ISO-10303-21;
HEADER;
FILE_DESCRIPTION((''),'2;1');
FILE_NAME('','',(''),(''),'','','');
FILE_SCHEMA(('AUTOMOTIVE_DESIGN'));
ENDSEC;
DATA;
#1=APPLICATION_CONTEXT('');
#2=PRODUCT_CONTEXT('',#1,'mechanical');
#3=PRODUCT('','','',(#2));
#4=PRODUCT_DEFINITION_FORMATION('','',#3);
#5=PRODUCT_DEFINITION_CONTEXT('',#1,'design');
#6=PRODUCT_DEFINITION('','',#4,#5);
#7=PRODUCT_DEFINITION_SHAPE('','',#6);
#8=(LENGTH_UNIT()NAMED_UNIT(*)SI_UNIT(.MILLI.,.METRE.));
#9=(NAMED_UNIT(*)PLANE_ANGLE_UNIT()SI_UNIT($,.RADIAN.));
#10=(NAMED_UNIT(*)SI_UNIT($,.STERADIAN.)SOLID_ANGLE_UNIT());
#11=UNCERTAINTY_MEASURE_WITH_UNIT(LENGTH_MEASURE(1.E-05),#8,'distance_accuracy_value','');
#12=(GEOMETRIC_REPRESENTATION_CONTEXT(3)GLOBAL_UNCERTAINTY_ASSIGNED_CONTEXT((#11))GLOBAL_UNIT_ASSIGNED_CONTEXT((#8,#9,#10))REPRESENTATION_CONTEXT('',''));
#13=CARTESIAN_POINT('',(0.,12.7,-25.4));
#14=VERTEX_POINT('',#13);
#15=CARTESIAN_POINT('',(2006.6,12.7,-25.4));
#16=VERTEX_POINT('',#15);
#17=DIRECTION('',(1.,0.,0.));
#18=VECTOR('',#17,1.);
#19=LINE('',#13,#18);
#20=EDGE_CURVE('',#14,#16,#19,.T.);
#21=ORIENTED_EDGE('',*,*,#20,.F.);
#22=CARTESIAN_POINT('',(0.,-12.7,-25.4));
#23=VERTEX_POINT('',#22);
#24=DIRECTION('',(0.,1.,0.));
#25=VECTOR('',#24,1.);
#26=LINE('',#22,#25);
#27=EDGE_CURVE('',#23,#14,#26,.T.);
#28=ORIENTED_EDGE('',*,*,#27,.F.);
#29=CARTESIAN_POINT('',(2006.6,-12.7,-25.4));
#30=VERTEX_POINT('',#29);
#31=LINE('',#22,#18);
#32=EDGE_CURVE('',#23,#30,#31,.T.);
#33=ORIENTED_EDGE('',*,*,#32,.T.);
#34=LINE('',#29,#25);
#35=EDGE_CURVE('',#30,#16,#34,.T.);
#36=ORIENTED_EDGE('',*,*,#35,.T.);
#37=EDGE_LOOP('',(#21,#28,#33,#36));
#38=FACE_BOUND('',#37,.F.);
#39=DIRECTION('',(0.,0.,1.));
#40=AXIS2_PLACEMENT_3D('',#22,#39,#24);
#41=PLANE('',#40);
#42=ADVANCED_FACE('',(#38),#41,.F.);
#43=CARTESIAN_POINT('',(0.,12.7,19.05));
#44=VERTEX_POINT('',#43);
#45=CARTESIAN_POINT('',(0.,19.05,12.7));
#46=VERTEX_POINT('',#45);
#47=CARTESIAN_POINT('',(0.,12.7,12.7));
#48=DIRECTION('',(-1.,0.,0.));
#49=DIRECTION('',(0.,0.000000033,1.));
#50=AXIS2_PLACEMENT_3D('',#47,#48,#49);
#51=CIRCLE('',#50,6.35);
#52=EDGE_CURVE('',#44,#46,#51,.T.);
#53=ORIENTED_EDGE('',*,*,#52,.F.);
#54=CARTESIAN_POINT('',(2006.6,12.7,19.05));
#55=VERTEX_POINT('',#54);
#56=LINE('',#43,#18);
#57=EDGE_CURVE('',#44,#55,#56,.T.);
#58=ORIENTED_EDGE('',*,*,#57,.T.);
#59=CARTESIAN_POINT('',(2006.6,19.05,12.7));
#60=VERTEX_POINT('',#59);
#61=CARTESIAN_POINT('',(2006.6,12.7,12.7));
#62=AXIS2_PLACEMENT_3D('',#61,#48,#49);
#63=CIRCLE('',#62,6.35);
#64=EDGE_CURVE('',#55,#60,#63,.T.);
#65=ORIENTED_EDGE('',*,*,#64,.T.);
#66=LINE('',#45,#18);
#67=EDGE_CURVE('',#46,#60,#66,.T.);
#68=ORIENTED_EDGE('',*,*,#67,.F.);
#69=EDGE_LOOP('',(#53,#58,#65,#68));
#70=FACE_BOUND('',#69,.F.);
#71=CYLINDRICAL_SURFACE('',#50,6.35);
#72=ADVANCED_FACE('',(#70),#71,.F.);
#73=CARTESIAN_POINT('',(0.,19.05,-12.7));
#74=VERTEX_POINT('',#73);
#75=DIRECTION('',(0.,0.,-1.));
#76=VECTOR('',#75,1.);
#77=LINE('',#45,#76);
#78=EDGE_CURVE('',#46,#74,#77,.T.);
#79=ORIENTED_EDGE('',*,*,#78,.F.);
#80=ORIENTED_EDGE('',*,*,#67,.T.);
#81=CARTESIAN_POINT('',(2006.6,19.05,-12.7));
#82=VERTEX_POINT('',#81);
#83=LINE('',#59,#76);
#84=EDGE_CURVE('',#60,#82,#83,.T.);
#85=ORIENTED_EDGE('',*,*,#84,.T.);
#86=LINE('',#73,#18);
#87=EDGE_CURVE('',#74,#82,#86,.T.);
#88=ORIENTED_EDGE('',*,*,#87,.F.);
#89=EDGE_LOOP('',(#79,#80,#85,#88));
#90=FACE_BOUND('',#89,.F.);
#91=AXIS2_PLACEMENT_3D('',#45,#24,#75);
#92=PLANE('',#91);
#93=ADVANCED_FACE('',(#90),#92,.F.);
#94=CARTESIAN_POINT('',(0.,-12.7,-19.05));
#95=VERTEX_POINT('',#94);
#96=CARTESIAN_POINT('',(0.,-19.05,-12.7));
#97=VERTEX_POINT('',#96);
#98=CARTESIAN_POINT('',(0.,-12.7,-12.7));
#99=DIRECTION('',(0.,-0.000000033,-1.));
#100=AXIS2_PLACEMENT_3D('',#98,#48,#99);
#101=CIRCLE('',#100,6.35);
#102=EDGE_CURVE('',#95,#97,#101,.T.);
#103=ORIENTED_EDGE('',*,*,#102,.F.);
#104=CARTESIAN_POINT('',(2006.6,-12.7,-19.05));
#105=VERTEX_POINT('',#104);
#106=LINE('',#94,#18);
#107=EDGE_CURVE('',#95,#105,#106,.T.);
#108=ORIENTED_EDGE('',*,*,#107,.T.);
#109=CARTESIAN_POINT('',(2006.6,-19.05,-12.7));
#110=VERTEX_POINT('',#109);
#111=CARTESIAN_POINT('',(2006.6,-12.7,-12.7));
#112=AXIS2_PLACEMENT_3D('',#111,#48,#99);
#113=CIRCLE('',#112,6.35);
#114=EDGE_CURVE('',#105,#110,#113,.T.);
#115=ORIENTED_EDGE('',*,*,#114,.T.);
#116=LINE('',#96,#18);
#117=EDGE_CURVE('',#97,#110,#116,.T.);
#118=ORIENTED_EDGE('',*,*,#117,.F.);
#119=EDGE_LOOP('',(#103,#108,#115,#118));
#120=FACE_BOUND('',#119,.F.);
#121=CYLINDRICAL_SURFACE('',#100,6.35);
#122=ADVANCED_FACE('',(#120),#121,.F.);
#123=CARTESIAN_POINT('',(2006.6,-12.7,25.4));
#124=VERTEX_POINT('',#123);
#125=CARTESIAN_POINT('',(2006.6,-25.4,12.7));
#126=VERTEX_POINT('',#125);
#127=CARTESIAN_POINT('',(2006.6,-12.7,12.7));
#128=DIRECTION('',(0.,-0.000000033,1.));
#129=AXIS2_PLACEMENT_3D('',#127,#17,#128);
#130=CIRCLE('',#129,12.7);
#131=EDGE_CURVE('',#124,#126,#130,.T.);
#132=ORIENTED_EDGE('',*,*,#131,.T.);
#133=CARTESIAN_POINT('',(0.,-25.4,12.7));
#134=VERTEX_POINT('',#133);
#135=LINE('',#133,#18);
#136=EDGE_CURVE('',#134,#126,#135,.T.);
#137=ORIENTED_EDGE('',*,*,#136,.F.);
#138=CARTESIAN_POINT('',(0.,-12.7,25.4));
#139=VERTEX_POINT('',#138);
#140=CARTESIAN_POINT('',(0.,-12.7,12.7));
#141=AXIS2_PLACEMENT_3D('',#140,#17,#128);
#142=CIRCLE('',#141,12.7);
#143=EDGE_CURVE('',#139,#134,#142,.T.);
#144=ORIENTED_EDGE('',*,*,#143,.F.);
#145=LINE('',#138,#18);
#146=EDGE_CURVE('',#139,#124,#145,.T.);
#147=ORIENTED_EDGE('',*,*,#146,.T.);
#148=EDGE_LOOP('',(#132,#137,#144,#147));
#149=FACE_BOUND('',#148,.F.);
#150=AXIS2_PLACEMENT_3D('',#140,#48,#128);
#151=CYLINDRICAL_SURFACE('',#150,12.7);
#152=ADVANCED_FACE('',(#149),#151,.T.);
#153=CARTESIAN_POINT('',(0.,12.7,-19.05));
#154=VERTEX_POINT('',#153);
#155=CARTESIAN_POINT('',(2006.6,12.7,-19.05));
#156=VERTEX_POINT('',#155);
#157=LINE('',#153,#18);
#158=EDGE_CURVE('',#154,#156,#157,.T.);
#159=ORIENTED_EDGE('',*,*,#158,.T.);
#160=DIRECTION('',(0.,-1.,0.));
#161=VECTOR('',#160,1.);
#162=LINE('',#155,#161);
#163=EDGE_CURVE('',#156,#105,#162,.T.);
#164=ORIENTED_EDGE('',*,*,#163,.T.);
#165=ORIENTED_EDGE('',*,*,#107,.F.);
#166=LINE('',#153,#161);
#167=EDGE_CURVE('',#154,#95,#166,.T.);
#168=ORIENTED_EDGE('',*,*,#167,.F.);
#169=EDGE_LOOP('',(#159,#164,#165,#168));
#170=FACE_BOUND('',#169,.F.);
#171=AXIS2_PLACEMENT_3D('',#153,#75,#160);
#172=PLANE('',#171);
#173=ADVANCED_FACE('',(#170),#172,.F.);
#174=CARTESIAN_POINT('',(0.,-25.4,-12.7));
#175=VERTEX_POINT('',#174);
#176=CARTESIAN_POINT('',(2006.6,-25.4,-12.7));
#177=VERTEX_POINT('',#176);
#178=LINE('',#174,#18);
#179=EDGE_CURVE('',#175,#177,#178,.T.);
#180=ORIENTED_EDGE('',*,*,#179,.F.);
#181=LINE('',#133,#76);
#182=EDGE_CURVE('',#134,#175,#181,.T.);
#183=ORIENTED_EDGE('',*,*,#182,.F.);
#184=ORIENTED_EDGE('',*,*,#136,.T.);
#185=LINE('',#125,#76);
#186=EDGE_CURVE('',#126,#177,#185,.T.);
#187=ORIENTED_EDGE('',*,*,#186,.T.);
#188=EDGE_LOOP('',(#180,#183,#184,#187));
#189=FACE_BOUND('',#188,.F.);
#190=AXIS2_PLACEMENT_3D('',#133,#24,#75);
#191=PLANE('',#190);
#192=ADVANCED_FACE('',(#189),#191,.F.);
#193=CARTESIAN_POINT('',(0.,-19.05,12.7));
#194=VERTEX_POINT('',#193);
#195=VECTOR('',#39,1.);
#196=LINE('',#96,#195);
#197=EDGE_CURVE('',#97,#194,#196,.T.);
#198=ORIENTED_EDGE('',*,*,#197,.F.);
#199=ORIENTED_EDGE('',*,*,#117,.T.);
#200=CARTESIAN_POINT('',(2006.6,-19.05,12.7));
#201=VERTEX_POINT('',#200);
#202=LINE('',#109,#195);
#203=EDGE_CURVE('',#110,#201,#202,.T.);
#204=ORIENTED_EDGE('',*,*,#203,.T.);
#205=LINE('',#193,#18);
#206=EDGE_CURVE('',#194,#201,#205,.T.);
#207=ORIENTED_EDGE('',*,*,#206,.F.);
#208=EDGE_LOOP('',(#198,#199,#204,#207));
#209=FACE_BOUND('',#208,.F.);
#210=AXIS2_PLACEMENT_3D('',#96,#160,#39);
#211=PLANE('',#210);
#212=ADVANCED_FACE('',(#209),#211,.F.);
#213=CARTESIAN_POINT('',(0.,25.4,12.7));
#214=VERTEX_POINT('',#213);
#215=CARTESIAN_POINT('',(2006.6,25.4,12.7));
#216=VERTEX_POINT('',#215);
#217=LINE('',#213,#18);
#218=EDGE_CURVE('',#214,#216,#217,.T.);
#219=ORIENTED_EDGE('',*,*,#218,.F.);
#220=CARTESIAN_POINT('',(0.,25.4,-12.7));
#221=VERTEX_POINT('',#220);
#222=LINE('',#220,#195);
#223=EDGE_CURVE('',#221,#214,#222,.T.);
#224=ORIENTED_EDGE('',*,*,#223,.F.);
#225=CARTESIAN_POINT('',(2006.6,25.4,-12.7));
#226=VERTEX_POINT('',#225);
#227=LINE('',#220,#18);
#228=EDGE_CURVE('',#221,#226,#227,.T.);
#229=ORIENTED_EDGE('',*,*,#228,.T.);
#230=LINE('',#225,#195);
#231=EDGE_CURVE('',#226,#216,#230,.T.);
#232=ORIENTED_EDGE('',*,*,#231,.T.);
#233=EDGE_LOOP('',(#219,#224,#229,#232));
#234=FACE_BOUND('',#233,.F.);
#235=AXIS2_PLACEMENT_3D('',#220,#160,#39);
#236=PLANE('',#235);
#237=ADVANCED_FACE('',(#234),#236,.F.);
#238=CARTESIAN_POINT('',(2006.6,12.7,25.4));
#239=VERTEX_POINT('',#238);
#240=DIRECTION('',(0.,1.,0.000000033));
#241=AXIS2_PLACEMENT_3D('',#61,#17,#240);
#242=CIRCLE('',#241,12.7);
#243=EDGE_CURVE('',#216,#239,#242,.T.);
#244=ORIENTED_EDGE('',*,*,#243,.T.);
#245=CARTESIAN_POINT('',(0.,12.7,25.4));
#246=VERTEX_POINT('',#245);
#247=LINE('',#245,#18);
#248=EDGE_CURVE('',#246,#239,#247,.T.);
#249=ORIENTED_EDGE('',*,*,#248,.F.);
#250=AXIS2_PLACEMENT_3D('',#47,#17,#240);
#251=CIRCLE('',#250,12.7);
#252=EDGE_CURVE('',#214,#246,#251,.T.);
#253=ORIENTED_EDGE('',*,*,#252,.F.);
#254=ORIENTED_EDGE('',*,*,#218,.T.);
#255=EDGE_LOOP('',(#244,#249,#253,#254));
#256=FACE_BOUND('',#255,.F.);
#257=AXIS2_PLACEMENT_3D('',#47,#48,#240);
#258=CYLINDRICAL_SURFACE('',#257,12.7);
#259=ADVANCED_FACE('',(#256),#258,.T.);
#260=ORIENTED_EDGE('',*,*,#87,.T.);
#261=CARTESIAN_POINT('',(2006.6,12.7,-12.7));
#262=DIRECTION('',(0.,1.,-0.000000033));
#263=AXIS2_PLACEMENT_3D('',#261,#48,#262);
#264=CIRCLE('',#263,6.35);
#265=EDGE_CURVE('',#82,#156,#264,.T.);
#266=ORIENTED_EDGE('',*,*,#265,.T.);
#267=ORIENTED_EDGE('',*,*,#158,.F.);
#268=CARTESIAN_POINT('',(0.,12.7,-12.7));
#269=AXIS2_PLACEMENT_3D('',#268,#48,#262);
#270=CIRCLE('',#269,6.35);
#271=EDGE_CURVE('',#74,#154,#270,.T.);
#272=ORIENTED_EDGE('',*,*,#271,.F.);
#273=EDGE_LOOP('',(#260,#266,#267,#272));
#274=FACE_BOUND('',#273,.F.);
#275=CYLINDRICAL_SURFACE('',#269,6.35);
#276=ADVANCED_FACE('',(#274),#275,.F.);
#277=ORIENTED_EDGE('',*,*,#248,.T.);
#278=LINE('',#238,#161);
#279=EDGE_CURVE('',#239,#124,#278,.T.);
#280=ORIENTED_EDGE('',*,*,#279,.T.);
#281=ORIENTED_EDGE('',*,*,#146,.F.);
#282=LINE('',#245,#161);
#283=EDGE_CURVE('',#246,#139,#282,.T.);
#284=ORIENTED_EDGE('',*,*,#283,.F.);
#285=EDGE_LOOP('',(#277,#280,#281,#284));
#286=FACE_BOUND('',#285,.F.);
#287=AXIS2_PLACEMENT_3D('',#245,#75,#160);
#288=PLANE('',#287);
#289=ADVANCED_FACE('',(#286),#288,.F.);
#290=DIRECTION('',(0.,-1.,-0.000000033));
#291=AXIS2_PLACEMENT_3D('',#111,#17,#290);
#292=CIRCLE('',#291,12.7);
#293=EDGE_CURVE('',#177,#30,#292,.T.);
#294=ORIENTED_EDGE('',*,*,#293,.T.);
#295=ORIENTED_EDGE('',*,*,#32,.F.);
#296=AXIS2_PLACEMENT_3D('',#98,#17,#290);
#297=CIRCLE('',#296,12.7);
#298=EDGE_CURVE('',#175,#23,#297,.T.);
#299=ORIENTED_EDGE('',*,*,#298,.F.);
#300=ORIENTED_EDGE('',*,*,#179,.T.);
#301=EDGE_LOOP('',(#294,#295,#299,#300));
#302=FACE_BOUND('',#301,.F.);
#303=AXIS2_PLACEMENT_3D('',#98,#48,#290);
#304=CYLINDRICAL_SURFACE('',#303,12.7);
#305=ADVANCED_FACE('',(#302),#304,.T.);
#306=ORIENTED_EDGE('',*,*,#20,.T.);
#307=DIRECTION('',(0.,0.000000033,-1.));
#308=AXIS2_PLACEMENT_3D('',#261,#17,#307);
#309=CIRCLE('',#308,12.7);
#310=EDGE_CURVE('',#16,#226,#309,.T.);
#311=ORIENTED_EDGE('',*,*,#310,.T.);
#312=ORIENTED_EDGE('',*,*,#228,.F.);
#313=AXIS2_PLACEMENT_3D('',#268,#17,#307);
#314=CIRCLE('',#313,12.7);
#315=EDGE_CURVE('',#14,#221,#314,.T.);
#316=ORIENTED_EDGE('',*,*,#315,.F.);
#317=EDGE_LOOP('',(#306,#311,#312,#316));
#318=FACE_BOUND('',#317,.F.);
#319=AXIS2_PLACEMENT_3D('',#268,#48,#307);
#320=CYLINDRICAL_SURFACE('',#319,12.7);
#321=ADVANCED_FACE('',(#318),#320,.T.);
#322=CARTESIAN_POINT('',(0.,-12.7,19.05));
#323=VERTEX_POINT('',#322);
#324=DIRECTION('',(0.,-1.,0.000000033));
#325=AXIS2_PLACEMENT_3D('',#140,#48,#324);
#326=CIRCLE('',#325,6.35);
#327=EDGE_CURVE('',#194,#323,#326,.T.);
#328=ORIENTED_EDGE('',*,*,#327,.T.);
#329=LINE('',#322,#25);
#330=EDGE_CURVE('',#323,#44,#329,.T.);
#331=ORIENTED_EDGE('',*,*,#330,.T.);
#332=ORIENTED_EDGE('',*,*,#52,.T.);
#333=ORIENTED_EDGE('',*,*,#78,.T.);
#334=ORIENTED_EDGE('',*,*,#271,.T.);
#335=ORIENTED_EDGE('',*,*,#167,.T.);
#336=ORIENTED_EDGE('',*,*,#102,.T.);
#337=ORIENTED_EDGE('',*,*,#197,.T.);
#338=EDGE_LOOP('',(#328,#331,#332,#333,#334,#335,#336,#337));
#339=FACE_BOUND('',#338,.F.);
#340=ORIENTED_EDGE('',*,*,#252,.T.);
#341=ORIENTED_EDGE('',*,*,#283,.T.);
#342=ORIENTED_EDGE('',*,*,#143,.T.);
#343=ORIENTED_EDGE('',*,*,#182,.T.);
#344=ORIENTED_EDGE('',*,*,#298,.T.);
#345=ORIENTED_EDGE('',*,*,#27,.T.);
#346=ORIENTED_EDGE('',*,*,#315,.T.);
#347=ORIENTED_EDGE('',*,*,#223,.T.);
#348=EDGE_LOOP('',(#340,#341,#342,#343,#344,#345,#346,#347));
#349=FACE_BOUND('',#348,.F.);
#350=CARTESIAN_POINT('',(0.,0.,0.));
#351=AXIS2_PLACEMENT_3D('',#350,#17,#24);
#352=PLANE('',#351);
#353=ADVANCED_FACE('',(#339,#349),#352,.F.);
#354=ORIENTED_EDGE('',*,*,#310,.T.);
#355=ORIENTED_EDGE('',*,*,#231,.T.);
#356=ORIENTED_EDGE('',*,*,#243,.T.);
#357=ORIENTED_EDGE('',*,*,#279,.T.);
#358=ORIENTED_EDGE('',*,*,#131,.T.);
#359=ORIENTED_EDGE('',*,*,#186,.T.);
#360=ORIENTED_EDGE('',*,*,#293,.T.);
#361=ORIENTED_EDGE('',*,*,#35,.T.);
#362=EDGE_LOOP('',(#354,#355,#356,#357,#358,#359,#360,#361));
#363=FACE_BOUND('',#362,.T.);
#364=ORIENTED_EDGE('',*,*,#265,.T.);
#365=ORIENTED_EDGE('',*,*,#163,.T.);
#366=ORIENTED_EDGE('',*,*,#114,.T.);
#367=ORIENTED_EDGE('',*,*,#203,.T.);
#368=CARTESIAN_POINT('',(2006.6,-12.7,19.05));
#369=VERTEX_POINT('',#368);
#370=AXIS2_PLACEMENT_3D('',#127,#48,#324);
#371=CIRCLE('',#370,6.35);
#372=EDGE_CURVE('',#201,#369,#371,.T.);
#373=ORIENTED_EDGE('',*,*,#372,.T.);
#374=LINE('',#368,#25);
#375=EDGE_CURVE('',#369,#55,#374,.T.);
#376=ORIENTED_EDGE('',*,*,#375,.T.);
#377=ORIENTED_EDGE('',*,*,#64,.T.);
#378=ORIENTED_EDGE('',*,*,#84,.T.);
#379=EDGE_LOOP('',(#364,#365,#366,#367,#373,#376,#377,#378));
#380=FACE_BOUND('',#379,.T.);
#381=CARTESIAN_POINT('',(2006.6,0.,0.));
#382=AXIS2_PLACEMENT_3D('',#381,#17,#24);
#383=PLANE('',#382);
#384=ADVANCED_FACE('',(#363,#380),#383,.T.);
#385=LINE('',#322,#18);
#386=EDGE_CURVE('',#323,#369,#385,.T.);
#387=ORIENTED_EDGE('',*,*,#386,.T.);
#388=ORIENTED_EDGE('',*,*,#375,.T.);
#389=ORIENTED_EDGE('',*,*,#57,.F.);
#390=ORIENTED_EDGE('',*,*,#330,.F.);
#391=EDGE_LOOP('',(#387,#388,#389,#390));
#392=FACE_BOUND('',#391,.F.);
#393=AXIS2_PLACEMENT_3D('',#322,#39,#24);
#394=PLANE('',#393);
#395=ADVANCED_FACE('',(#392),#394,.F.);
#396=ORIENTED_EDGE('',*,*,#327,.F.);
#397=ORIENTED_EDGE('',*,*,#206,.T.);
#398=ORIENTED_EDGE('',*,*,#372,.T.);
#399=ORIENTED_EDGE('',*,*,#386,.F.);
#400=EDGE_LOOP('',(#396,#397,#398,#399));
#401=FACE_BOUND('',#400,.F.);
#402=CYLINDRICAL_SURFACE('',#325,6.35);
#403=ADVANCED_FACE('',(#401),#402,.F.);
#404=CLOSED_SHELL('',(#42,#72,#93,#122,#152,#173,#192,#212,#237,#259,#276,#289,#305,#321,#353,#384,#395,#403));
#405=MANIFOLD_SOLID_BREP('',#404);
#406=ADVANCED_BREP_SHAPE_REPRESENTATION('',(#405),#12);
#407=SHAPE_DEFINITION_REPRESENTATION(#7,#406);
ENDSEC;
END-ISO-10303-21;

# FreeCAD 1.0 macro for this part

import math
import FreeCAD as App
import Part
import Sketcher
from FreeCAD import Vector
Q = App.Units.Quantity

doc = App.newDocument("Part")
body = doc.addObject("PartDesign::Body", "Body")

# Sketch on YZ plane
sketch1 = body.newObject("Sketcher::SketchObject", "Sketch")
sketch1.AttachmentSupport = (doc.getObject("YZ_Plane"), [""])
sketch1.MapMode = "FlatFace"
sketch1.addGeometry(Part.ArcOfCircle(Part.Circle(Vector(13, 13, 0), Vector(0, 0, 1), 13), math.radians(0), math.radians(90)), False)
sketch1.addGeometry(Part.LineSegment(Vector(13, 25, 0), Vector(-13, 25, 0)), False)
sketch1.addGeometry(Part.ArcOfCircle(Part.Circle(Vector(-13, 13, 0), Vector(0, 0, 1), 13), math.radians(90), math.radians(180)), False)
sketch1.addGeometry(Part.LineSegment(Vector(-25, 13, 0), Vector(-25, -13, 0)), False)
sketch1.addGeometry(Part.ArcOfCircle(Part.Circle(Vector(-13, -13, 0), Vector(0, 0, 1), 13), math.radians(-180), math.radians(-90)), False)
sketch1.addGeometry(Part.LineSegment(Vector(-13, -25, 0), Vector(13, -25, 0)), False)
sketch1.addGeometry(Part.ArcOfCircle(Part.Circle(Vector(13, -13, 0), Vector(0, 0, 1), 13), math.radians(-90), math.radians(0)), False)
sketch1.addGeometry(Part.LineSegment(Vector(25, -13, 0), Vector(25, 13, 0)), False)
sketch1.addGeometry(Part.ArcOfCircle(Part.Circle(Vector(-13, 13, 0), Vector(0, 0, 1), 6), math.radians(90), math.radians(180)), False)
sketch1.addGeometry(Part.LineSegment(Vector(-13, 19, 0), Vector(13, 19, 0)), False)
sketch1.addGeometry(Part.ArcOfCircle(Part.Circle(Vector(13, 13, 0), Vector(0, 0, 1), 6), math.radians(0), math.radians(90)), False)
sketch1.addGeometry(Part.LineSegment(Vector(19, 13, 0), Vector(19, -13, 0)), False)
sketch1.addGeometry(Part.ArcOfCircle(Part.Circle(Vector(13, -13, 0), Vector(0, 0, 1), 6), math.radians(-90), math.radians(0)), False)
sketch1.addGeometry(Part.LineSegment(Vector(13, -19, 0), Vector(-13, -19, 0)), False)
sketch1.addGeometry(Part.ArcOfCircle(Part.Circle(Vector(-13, -13, 0), Vector(0, 0, 1), 6), math.radians(-180), math.radians(-90)), False)
sketch1.addGeometry(Part.LineSegment(Vector(-19, -13, 0), Vector(-19, 13, 0)), False)
sketch1.addConstraint(Sketcher.Constraint("Tangent", 0, 2, 1, 1))
sketch1.addConstraint(Sketcher.Constraint("Tangent", 1, 2, 2, 1))
sketch1.addConstraint(Sketcher.Constraint("Tangent", 2, 2, 3, 1))
sketch1.addConstraint(Sketcher.Constraint("Tangent", 3, 2, 4, 1))
sketch1.addConstraint(Sketcher.Constraint("Tangent", 4, 2, 5, 1))
sketch1.addConstraint(Sketcher.Constraint("Tangent", 5, 2, 6, 1))
sketch1.addConstraint(Sketcher.Constraint("Tangent", 6, 2, 7, 1))
sketch1.addConstraint(Sketcher.Constraint("Tangent", 7, 2, 0, 1))
sketch1.addConstraint(Sketcher.Constraint("Tangent", 8, 1, 9, 1))
sketch1.addConstraint(Sketcher.Constraint("Tangent", 9, 2, 10, 2))
sketch1.addConstraint(Sketcher.Constraint("Tangent", 10, 1, 11, 1))
sketch1.addConstraint(Sketcher.Constraint("Tangent", 11, 2, 12, 2))
sketch1.addConstraint(Sketcher.Constraint("Tangent", 12, 1, 13, 1))
sketch1.addConstraint(Sketcher.Constraint("Tangent", 13, 2, 14, 2))
sketch1.addConstraint(Sketcher.Constraint("Tangent", 14, 1, 15, 1))
sketch1.addConstraint(Sketcher.Constraint("Tangent", 15, 2, 8, 2))
sketch1.addConstraint(Sketcher.Constraint("Horizontal", 1))
sketch1.addConstraint(Sketcher.Constraint("Vertical", 3))
sketch1.addConstraint(Sketcher.Constraint("Horizontal", 5))
sketch1.addConstraint(Sketcher.Constraint("Vertical", 7))
sketch1.addConstraint(Sketcher.Constraint("Horizontal", 9))
sketch1.addConstraint(Sketcher.Constraint("Vertical", 11))
sketch1.addConstraint(Sketcher.Constraint("Horizontal", 13))
sketch1.addConstraint(Sketcher.Constraint("Vertical", 15))
sketch1.addConstraint(Sketcher.Constraint("Coincident", 8, 3, 2, 3))
sketch1.addConstraint(Sketcher.Constraint("Coincident", 10, 3, 0, 3))
sketch1.addConstraint(Sketcher.Constraint("Coincident", 12, 3, 6, 3))
sketch1.addConstraint(Sketcher.Constraint("Equal", 0, 2))
sketch1.addConstraint(Sketcher.Constraint("Equal", 2, 4))
sketch1.addConstraint(Sketcher.Constraint("Equal", 4, 6))
sketch1.addConstraint(Sketcher.Constraint("Equal", 12, 14))
sketch1.addConstraint(Sketcher.Constraint("Symmetric", 0, 3, 4, 3, -1, 1))
sketch1.addConstraint(Sketcher.Constraint("Equal", 13, 3))
sketch1.addConstraint(Sketcher.Constraint("Radius", 0, Q("0.5 in")))
sketch1.addConstraint(Sketcher.Constraint("DistanceX", 1, 2, 1, 1, Q("1 in")))
sketch1.addConstraint(Sketcher.Constraint("Radius", 8, Q("0.25 in")))
pad1 = body.newObject("PartDesign::Pad", "Pad")
pad1.Profile = sketch1
pad1.Length = Q("79 in")

doc.recompute()
